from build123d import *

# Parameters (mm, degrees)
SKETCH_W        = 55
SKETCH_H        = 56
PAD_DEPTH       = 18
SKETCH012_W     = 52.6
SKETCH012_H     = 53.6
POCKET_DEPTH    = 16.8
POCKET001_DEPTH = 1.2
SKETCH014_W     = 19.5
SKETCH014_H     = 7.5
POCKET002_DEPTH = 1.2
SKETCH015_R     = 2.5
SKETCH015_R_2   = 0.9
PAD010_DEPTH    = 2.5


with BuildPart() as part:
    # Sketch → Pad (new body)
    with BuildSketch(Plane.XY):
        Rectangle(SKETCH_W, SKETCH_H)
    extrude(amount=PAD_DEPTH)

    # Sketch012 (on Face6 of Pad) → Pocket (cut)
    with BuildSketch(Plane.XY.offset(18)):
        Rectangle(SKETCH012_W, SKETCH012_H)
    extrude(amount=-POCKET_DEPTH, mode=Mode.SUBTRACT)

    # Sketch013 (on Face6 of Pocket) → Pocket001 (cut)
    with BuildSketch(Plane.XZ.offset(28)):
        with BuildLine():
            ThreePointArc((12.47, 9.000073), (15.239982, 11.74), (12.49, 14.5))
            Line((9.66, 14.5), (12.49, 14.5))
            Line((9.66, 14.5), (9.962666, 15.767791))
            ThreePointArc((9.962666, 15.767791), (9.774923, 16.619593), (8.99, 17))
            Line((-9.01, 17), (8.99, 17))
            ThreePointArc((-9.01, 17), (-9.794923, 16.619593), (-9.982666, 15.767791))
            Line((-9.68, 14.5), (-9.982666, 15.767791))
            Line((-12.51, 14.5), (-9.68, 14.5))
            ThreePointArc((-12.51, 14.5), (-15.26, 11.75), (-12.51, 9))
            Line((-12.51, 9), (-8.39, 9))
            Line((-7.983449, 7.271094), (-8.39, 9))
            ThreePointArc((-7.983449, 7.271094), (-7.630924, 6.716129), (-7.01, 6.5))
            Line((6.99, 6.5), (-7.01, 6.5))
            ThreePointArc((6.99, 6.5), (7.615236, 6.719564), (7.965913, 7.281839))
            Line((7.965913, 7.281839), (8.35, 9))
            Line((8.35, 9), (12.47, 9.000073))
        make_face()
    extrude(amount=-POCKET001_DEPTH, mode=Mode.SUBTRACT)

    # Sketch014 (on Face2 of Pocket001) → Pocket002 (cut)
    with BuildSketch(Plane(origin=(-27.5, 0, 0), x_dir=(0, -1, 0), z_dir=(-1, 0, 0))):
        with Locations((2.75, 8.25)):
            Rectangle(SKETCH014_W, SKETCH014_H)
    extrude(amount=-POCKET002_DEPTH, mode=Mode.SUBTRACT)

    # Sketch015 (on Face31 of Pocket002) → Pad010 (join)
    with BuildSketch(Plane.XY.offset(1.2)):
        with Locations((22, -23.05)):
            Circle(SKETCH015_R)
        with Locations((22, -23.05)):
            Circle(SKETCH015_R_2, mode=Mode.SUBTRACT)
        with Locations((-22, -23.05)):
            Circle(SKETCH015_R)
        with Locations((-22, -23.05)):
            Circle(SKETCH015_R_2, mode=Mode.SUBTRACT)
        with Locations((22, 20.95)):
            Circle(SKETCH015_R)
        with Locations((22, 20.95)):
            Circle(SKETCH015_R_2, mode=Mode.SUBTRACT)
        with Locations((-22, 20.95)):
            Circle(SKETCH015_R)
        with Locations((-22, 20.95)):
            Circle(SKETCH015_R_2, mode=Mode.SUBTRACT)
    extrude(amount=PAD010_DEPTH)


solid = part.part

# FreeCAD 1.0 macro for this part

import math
import FreeCAD as App
import Part
import Sketcher
from FreeCAD import Vector

doc = App.newDocument("Part")
body = doc.addObject("PartDesign::Body", "Body")

# Sketch on XY plane
sketch1 = body.newObject("Sketcher::SketchObject", "Sketch")
sketch1.AttachmentSupport = (doc.getObject("XY_Plane"), [""])
sketch1.MapMode = "FlatFace"
sketch1.addGeometry(Part.LineSegment(Vector(-28, 28, 0), Vector(-28, -28, 0)), False)
sketch1.addGeometry(Part.LineSegment(Vector(-28, -28, 0), Vector(28, -28, 0)), False)
sketch1.addGeometry(Part.LineSegment(Vector(28, -28, 0), Vector(28, 28, 0)), False)
sketch1.addGeometry(Part.LineSegment(Vector(28, 28, 0), Vector(-28, 28, 0)), False)
sketch1.addConstraint(Sketcher.Constraint("Coincident", 0, 2, 1, 1))
sketch1.addConstraint(Sketcher.Constraint("Coincident", 1, 2, 2, 1))
sketch1.addConstraint(Sketcher.Constraint("Coincident", 2, 2, 3, 1))
sketch1.addConstraint(Sketcher.Constraint("Coincident", 3, 2, 0, 1))
sketch1.addConstraint(Sketcher.Constraint("Vertical", 0))
sketch1.addConstraint(Sketcher.Constraint("Horizontal", 1))
sketch1.addConstraint(Sketcher.Constraint("Vertical", 2))
sketch1.addConstraint(Sketcher.Constraint("Horizontal", 3))
sketch1.addConstraint(Sketcher.Constraint("Symmetric", 0, 2, 2, 2, -1, 1))
sketch1.addConstraint(Sketcher.Constraint("DistanceX", 1, 1, 1, 2, 55.0))
sketch1.addConstraint(Sketcher.Constraint("DistanceY", 0, 2, 0, 1, 56.0))
pad1 = body.newObject("PartDesign::Pad", "Pad")
pad1.Profile = sketch1
pad1.Length = 18

# Sketch on XY plane
sketch2 = body.newObject("Sketcher::SketchObject", "Sketch001")
sketch2.AttachmentSupport = (doc.getObject("XY_Plane"), [""])
sketch2.MapMode = "FlatFace"
sketch2.AttachmentOffset = App.Placement(Vector(0, 0, 18), App.Rotation())
sketch2.addGeometry(Part.LineSegment(Vector(-26, 27, 0), Vector(-26, -27, 0)), False)
sketch2.addGeometry(Part.LineSegment(Vector(-26, -27, 0), Vector(26, -27, 0)), False)
sketch2.addGeometry(Part.LineSegment(Vector(26, -27, 0), Vector(26, 27, 0)), False)
sketch2.addGeometry(Part.LineSegment(Vector(26, 27, 0), Vector(-26, 27, 0)), False)
sketch2.addConstraint(Sketcher.Constraint("Coincident", 0, 2, 1, 1))
sketch2.addConstraint(Sketcher.Constraint("Coincident", 1, 2, 2, 1))
sketch2.addConstraint(Sketcher.Constraint("Coincident", 2, 2, 3, 1))
sketch2.addConstraint(Sketcher.Constraint("Coincident", 3, 2, 0, 1))
sketch2.addConstraint(Sketcher.Constraint("Vertical", 0))
sketch2.addConstraint(Sketcher.Constraint("Horizontal", 1))
sketch2.addConstraint(Sketcher.Constraint("Vertical", 2))
sketch2.addConstraint(Sketcher.Constraint("Horizontal", 3))
sketch2.addConstraint(Sketcher.Constraint("Symmetric", 0, 2, 2, 2, -1, 1))
sketch2.addConstraint(Sketcher.Constraint("DistanceX", 1, 1, 1, 2, 52.6))
sketch2.addConstraint(Sketcher.Constraint("DistanceY", 0, 2, 0, 1, 53.6))
pocket1 = body.newObject("PartDesign::Pocket", "Pocket")
pocket1.Profile = sketch2
pocket1.Length = 16.8

# Sketch on XZ plane
sketch3 = body.newObject("Sketcher::SketchObject", "Sketch002")
sketch3.AttachmentSupport = (doc.getObject("XZ_Plane"), [""])
sketch3.MapMode = "FlatFace"
sketch3.AttachmentOffset = App.Placement(Vector(0, 0, 28), App.Rotation())
sketch3.addGeometry(Part.ArcOfCircle(Part.Circle(Vector(12.5, 11.8, 0), Vector(0, 0, 1), 2.7), math.radians(-90), math.radians(90)), False)
sketch3.addGeometry(Part.LineSegment(Vector(12.5, 14.5, 0), Vector(9.7, 14.5, 0)), False)
sketch3.addGeometry(Part.LineSegment(Vector(9.7, 14.5, 0), Vector(10, 15.8, 0)), False)
sketch3.addGeometry(Part.ArcOfCircle(Part.Circle(Vector(9, 16, 0), Vector(0, 0, 1), 1), math.radians(-13), math.radians(90)), False)
sketch3.addGeometry(Part.LineSegment(Vector(9, 17, 0), Vector(-9, 17, 0)), False)
sketch3.addGeometry(Part.ArcOfCircle(Part.Circle(Vector(-9, 16, 0), Vector(0, 0, 1), 1), math.radians(90), math.radians(193)), False)
sketch3.addGeometry(Part.LineSegment(Vector(-10, 15.8, 0), Vector(-9.7, 14.5, 0)), False)
sketch3.addGeometry(Part.LineSegment(Vector(-9.7, 14.5, 0), Vector(-12.5, 14.5, 0)), False)
sketch3.addGeometry(Part.ArcOfCircle(Part.Circle(Vector(-12.5, 11.8, 0), Vector(0, 0, 1), 2.8), math.radians(90), math.radians(270)), False)
sketch3.addGeometry(Part.LineSegment(Vector(-12.5, 9, 0), Vector(-8.4, 9, 0)), False)
sketch3.addGeometry(Part.LineSegment(Vector(-8.4, 9, 0), Vector(-8, 7.3, 0)), False)
sketch3.addGeometry(Part.ArcOfCircle(Part.Circle(Vector(-7, 7.5, 0), Vector(0, 0, 1), 1), math.radians(-167), math.radians(-90)), False)
sketch3.addGeometry(Part.LineSegment(Vector(-7, 6.5, 0), Vector(7, 6.5, 0)), False)
sketch3.addGeometry(Part.ArcOfCircle(Part.Circle(Vector(7, 7.5, 0), Vector(0, 0, 1), 1), math.radians(-90), math.radians(-13)), False)
sketch3.addGeometry(Part.LineSegment(Vector(8, 7.3, 0), Vector(8.3, 9, 0)), False)
sketch3.addGeometry(Part.LineSegment(Vector(8.3, 9, 0), Vector(12.5, 9, 0)), False)
sketch3.addConstraint(Sketcher.Constraint("Tangent", 0, 2, 1, 1))
sketch3.addConstraint(Sketcher.Constraint("Coincident", 1, 2, 2, 1))
sketch3.addConstraint(Sketcher.Constraint("Tangent", 2, 2, 3, 1))
sketch3.addConstraint(Sketcher.Constraint("Tangent", 3, 2, 4, 1))
sketch3.addConstraint(Sketcher.Constraint("Tangent", 4, 2, 5, 1))
sketch3.addConstraint(Sketcher.Constraint("Tangent", 5, 2, 6, 1))
sketch3.addConstraint(Sketcher.Constraint("Coincident", 6, 2, 7, 1))
sketch3.addConstraint(Sketcher.Constraint("Tangent", 7, 2, 8, 1))
sketch3.addConstraint(Sketcher.Constraint("Tangent", 8, 2, 9, 1))
sketch3.addConstraint(Sketcher.Constraint("Coincident", 9, 2, 10, 1))
sketch3.addConstraint(Sketcher.Constraint("Tangent", 10, 2, 11, 1))
sketch3.addConstraint(Sketcher.Constraint("Tangent", 11, 2, 12, 1))
sketch3.addConstraint(Sketcher.Constraint("Tangent", 12, 2, 13, 1))
sketch3.addConstraint(Sketcher.Constraint("Tangent", 13, 2, 14, 1))
sketch3.addConstraint(Sketcher.Constraint("Coincident", 14, 2, 15, 1))
sketch3.addConstraint(Sketcher.Constraint("Coincident", 15, 2, 0, 1))
sketch3.addConstraint(Sketcher.Constraint("Horizontal", 1))
sketch3.addConstraint(Sketcher.Constraint("Horizontal", 4))
sketch3.addConstraint(Sketcher.Constraint("Horizontal", 7))
sketch3.addConstraint(Sketcher.Constraint("Horizontal", 9))
sketch3.addConstraint(Sketcher.Constraint("Horizontal", 12))
sketch3.addConstraint(Sketcher.Constraint("Equal", 3, 5))
sketch3.addConstraint(Sketcher.Constraint("Equal", 0, 8))
sketch3.addConstraint(Sketcher.Constraint("Equal", 5, 11))
sketch3.addConstraint(Sketcher.Constraint("Equal", 11, 13))
sketch3.addConstraint(Sketcher.Constraint("Horizontal", 0, 3, 8, 3))
sketch3.addConstraint(Sketcher.Constraint("Horizontal", 2, 2, 5, 2))
sketch3.addConstraint(Sketcher.Constraint("Horizontal", 9, 2, 14, 2))
sketch3.addConstraint(Sketcher.Constraint("Equal", 1, 7))
sketch3.addConstraint(Sketcher.Constraint("Radius", 3, 1.0))
sketch3.addConstraint(Sketcher.Constraint("DistanceX", 4, 2, 4, 1, 18.0))
sketch3.addConstraint(Sketcher.Constraint("DistanceX", 12, 1, 12, 2, 14.0))
sketch3.addConstraint(Sketcher.Constraint("Radius", 0, 2.75))
sketch3.addConstraint(Sketcher.Constraint("DistanceY", -1, 1, 3, 3, 16.0))
sketch3.addConstraint(Sketcher.Constraint("DistanceY", -1, 1, 8, 2, 9.0))
sketch3.addConstraint(Sketcher.Constraint("DistanceX", 8, 3, 0, 3, 25.0))
sketch3.addConstraint(Sketcher.Constraint("DistanceX", 5, 3, 11, 3, 1.999999))
sketch3.addConstraint(Sketcher.Constraint("DistanceY", 13, 3, 0, 2, 7.0))
sketch3.addConstraint(Sketcher.Constraint("DistanceX", 1, 2, 1, 1, 2.83))
sketch3.addConstraint(Sketcher.Constraint("DistanceX", 9, 1, 9, 2, 4.12))
sketch3.addConstraint(Sketcher.Constraint("Distance", 15, 4.12))
sketch3.addConstraint(Sketcher.Constraint("DistanceX", -1, 1, 0, 3, 12.49))
sketch3.addConstraint(Sketcher.Constraint("DistanceX", -1, 1, 14, 2, 8.35))
pocket2 = body.newObject("PartDesign::Pocket", "Pocket001")
pocket2.Profile = sketch3
pocket2.Length = 1.2

# Sketch on YZ plane
sketch4 = body.newObject("Sketcher::SketchObject", "Sketch003")
sketch4.AttachmentSupport = (doc.getObject("YZ_Plane"), [""])
sketch4.MapMode = "FlatFace"
sketch4.AttachmentOffset = App.Placement(Vector(0, 0, -27.5), App.Rotation())
sketch4.addGeometry(Part.LineSegment(Vector(7, 12, 0), Vector(7, 4, 0)), False)
sketch4.addGeometry(Part.LineSegment(Vector(7, 4, 0), Vector(-12, 4, 0)), False)
sketch4.addGeometry(Part.LineSegment(Vector(-12, 4, 0), Vector(-12, 12, 0)), False)
sketch4.addGeometry(Part.LineSegment(Vector(-12, 12, 0), Vector(7, 12, 0)), False)
sketch4.addConstraint(Sketcher.Constraint("Coincident", 0, 2, 1, 1))
sketch4.addConstraint(Sketcher.Constraint("Coincident", 1, 2, 2, 1))
sketch4.addConstraint(Sketcher.Constraint("Coincident", 2, 2, 3, 1))
sketch4.addConstraint(Sketcher.Constraint("Coincident", 3, 2, 0, 1))
sketch4.addConstraint(Sketcher.Constraint("Vertical", 0))
sketch4.addConstraint(Sketcher.Constraint("Horizontal", 1))
sketch4.addConstraint(Sketcher.Constraint("Vertical", 2))
sketch4.addConstraint(Sketcher.Constraint("Horizontal", 3))
sketch4.addConstraint(Sketcher.Constraint("DistanceX", 1, 2, 1, 1, 19.5))
sketch4.addConstraint(Sketcher.Constraint("DistanceY", 0, 2, 0, 1, 7.5))
sketch4.addConstraint(Sketcher.Constraint("DistanceX", -1, 1, 0, 2, 7.0))
sketch4.addConstraint(Sketcher.Constraint("DistanceY", -1, 1, 2, 2, 12.0))
pocket3 = body.newObject("PartDesign::Pocket", "Pocket002")
pocket3.Profile = sketch4
pocket3.Length = 1.2
pocket3.Reversed = True

# Sketch on XY plane
sketch5 = body.newObject("Sketcher::SketchObject", "Sketch004")
sketch5.AttachmentSupport = (doc.getObject("XY_Plane"), [""])
sketch5.MapMode = "FlatFace"
sketch5.AttachmentOffset = App.Placement(Vector(0, 0, 1.2), App.Rotation())
sketch5.addGeometry(Part.Circle(Vector(22, -23.1, 0), Vector(0, 0, 1), 2.5), False)
sketch5.addGeometry(Part.Circle(Vector(22, -23.1, 0), Vector(0, 0, 1), 0.9), False)
sketch5.addGeometry(Part.Circle(Vector(-22, -23.1, 0), Vector(0, 0, 1), 2.5), False)
sketch5.addGeometry(Part.Circle(Vector(-22, -23.1, 0), Vector(0, 0, 1), 0.9), False)
sketch5.addGeometry(Part.Circle(Vector(22, 20.9, 0), Vector(0, 0, 1), 2.5), False)
sketch5.addGeometry(Part.Circle(Vector(22, 20.9, 0), Vector(0, 0, 1), 0.9), False)
sketch5.addGeometry(Part.Circle(Vector(-22, 20.9, 0), Vector(0, 0, 1), 2.5), False)
sketch5.addGeometry(Part.Circle(Vector(-22, 20.9, 0), Vector(0, 0, 1), 0.9), False)
sketch5.addConstraint(Sketcher.Constraint("Coincident", 1, 3, 0, 3))
sketch5.addConstraint(Sketcher.Constraint("Coincident", 3, 3, 2, 3))
sketch5.addConstraint(Sketcher.Constraint("Coincident", 5, 3, 4, 3))
sketch5.addConstraint(Sketcher.Constraint("Coincident", 7, 3, 6, 3))
sketch5.addConstraint(Sketcher.Constraint("Equal", 0, 2))
sketch5.addConstraint(Sketcher.Constraint("Equal", 1, 3))
sketch5.addConstraint(Sketcher.Constraint("Equal", 2, 4))
sketch5.addConstraint(Sketcher.Constraint("Equal", 3, 5))
sketch5.addConstraint(Sketcher.Constraint("Equal", 4, 6))
sketch5.addConstraint(Sketcher.Constraint("Equal", 5, 7))
sketch5.addConstraint(Sketcher.Constraint("Symmetric", 0, 3, 2, 3, -2))
sketch5.addConstraint(Sketcher.Constraint("Symmetric", 4, 3, 6, 3, -2))
sketch5.addConstraint(Sketcher.Constraint("Vertical", 1, 3, 4, 3))
sketch5.addConstraint(Sketcher.Constraint("Diameter", 0, 5.0))
sketch5.addConstraint(Sketcher.Constraint("Diameter", 1, 1.8))
sketch5.addConstraint(Sketcher.Constraint("DistanceX", -1, 1, 0, 3, 22.0))
sketch5.addConstraint(Sketcher.Constraint("DistanceY", 0, 3, 4, 3, 44.0))
sketch5.addConstraint(Sketcher.Constraint("DistanceY", 0, 3, -1, 1, 23.05))
pad2 = body.newObject("PartDesign::Pad", "Pad001")
pad2.Profile = sketch5
pad2.Length = 2.5

doc.recompute()
